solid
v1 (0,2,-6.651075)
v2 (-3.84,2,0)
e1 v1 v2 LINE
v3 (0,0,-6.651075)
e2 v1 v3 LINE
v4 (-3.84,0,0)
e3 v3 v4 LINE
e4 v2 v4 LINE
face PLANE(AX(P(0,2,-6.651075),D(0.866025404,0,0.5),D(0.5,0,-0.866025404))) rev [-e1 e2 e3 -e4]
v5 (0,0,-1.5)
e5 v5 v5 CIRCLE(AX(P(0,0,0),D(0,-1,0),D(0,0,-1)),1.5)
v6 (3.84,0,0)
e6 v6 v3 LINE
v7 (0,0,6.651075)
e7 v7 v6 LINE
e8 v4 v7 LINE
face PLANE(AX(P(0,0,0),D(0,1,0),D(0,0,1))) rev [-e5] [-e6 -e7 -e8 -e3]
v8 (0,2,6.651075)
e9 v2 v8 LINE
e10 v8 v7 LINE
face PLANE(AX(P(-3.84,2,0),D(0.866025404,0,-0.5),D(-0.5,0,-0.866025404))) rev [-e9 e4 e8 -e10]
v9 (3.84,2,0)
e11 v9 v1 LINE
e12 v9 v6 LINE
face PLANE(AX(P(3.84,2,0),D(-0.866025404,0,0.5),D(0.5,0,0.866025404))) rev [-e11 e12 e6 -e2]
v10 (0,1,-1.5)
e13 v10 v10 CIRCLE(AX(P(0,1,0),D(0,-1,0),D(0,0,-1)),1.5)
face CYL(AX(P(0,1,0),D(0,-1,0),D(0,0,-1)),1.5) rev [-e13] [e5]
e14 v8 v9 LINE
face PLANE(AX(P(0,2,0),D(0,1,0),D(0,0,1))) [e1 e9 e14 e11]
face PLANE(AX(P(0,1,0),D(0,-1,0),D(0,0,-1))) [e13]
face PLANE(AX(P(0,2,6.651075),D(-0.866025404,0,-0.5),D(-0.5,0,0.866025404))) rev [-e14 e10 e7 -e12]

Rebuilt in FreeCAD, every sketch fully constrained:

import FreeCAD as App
import Part
import Sketcher

V = App.Vector
Q = App.Units.Quantity


def add_polygon(sketch, points):
    """Adds a closed chain of lines whose ends are joined by coincident constraints."""
    first, n = sketch.GeometryCount, len(points)
    for a, b in zip(points, points[1:] + points[:1]):
        sketch.addGeometry(Part.LineSegment(App.Vector(*a, 0), App.Vector(*b, 0)), False)
    for i in range(n):
        sketch.addConstraint(Sketcher.Constraint("Coincident", first + i, 2, first + (i + 1) % n, 1))

doc = App.newDocument("Part")
params = doc.addObject("Spreadsheet::Sheet", "Params")
for row, (alias, value) in enumerate([
    ("sketch1_length", "7.68 mm"),
    ("pad1_length", "2 mm"),
    ("sketch2_diameter", "3 mm"),
    ("pocket1_length", "1 mm"),
], start=1):
    params.set(f"A{row}", alias)
    params.set(f"B{row}", "=" + value)
    params.setAlias(f"B{row}", alias)

body = doc.addObject("PartDesign::Body", "Body")

sketch1 = doc.addObject("Sketcher::SketchObject", "Sketch")
body.addObject(sketch1)
sketch1.AttachmentSupport = (doc.XZ_Plane, [""])
sketch1.MapMode = "FlatFace"
add_polygon(sketch1, [(0, -6.651075), (-3.84, 0), (0, 6.651075), (3.84, 0)])
sketch1.addConstraint([
    Sketcher.Constraint("Symmetric", 0, 2, 2, 2, -1, 1),
    Sketcher.Constraint("Symmetric", 1, 2, 3, 2, -1, 1),
    Sketcher.Constraint("PointOnObject", 0, 2, -1),
    Sketcher.Constraint("PointOnObject", 1, 2, -2),
    Sketcher.Constraint("Angle", 0, Q("120 deg")),
    Sketcher.Constraint("Distance", 0, Q("7.68 mm")),
])
sketch1.setExpression("Constraints[9]", "Params.sketch1_length")
pad1 = doc.addObject("PartDesign::Pad", "Pad")
body.addObject(pad1)
pad1.Profile = sketch1
pad1.setExpression("Length", "Params.pad1_length")
pad1.Reversed = True

sketch2 = doc.addObject("Sketcher::SketchObject", "Sketch001")
body.addObject(sketch2)
sketch2.AttachmentSupport = (doc.XZ_Plane, [""])
sketch2.MapMode = "FlatFace"
sketch2.addGeometry(Part.Circle(V(0, 0, 0), V(0, 0, 1), 1.5), False)
sketch2.addConstraint([
    Sketcher.Constraint("Coincident", 0, 3, -1, 1),
    Sketcher.Constraint("Diameter", 0, Q("3 mm")),
])
sketch2.setExpression("Constraints[1]", "Params.sketch2_diameter")
pocket1 = doc.addObject("PartDesign::Pocket", "Pocket")
body.addObject(pocket1)
pocket1.Profile = sketch2
pocket1.setExpression("Length", "Params.pocket1_length")

doc.recompute()
